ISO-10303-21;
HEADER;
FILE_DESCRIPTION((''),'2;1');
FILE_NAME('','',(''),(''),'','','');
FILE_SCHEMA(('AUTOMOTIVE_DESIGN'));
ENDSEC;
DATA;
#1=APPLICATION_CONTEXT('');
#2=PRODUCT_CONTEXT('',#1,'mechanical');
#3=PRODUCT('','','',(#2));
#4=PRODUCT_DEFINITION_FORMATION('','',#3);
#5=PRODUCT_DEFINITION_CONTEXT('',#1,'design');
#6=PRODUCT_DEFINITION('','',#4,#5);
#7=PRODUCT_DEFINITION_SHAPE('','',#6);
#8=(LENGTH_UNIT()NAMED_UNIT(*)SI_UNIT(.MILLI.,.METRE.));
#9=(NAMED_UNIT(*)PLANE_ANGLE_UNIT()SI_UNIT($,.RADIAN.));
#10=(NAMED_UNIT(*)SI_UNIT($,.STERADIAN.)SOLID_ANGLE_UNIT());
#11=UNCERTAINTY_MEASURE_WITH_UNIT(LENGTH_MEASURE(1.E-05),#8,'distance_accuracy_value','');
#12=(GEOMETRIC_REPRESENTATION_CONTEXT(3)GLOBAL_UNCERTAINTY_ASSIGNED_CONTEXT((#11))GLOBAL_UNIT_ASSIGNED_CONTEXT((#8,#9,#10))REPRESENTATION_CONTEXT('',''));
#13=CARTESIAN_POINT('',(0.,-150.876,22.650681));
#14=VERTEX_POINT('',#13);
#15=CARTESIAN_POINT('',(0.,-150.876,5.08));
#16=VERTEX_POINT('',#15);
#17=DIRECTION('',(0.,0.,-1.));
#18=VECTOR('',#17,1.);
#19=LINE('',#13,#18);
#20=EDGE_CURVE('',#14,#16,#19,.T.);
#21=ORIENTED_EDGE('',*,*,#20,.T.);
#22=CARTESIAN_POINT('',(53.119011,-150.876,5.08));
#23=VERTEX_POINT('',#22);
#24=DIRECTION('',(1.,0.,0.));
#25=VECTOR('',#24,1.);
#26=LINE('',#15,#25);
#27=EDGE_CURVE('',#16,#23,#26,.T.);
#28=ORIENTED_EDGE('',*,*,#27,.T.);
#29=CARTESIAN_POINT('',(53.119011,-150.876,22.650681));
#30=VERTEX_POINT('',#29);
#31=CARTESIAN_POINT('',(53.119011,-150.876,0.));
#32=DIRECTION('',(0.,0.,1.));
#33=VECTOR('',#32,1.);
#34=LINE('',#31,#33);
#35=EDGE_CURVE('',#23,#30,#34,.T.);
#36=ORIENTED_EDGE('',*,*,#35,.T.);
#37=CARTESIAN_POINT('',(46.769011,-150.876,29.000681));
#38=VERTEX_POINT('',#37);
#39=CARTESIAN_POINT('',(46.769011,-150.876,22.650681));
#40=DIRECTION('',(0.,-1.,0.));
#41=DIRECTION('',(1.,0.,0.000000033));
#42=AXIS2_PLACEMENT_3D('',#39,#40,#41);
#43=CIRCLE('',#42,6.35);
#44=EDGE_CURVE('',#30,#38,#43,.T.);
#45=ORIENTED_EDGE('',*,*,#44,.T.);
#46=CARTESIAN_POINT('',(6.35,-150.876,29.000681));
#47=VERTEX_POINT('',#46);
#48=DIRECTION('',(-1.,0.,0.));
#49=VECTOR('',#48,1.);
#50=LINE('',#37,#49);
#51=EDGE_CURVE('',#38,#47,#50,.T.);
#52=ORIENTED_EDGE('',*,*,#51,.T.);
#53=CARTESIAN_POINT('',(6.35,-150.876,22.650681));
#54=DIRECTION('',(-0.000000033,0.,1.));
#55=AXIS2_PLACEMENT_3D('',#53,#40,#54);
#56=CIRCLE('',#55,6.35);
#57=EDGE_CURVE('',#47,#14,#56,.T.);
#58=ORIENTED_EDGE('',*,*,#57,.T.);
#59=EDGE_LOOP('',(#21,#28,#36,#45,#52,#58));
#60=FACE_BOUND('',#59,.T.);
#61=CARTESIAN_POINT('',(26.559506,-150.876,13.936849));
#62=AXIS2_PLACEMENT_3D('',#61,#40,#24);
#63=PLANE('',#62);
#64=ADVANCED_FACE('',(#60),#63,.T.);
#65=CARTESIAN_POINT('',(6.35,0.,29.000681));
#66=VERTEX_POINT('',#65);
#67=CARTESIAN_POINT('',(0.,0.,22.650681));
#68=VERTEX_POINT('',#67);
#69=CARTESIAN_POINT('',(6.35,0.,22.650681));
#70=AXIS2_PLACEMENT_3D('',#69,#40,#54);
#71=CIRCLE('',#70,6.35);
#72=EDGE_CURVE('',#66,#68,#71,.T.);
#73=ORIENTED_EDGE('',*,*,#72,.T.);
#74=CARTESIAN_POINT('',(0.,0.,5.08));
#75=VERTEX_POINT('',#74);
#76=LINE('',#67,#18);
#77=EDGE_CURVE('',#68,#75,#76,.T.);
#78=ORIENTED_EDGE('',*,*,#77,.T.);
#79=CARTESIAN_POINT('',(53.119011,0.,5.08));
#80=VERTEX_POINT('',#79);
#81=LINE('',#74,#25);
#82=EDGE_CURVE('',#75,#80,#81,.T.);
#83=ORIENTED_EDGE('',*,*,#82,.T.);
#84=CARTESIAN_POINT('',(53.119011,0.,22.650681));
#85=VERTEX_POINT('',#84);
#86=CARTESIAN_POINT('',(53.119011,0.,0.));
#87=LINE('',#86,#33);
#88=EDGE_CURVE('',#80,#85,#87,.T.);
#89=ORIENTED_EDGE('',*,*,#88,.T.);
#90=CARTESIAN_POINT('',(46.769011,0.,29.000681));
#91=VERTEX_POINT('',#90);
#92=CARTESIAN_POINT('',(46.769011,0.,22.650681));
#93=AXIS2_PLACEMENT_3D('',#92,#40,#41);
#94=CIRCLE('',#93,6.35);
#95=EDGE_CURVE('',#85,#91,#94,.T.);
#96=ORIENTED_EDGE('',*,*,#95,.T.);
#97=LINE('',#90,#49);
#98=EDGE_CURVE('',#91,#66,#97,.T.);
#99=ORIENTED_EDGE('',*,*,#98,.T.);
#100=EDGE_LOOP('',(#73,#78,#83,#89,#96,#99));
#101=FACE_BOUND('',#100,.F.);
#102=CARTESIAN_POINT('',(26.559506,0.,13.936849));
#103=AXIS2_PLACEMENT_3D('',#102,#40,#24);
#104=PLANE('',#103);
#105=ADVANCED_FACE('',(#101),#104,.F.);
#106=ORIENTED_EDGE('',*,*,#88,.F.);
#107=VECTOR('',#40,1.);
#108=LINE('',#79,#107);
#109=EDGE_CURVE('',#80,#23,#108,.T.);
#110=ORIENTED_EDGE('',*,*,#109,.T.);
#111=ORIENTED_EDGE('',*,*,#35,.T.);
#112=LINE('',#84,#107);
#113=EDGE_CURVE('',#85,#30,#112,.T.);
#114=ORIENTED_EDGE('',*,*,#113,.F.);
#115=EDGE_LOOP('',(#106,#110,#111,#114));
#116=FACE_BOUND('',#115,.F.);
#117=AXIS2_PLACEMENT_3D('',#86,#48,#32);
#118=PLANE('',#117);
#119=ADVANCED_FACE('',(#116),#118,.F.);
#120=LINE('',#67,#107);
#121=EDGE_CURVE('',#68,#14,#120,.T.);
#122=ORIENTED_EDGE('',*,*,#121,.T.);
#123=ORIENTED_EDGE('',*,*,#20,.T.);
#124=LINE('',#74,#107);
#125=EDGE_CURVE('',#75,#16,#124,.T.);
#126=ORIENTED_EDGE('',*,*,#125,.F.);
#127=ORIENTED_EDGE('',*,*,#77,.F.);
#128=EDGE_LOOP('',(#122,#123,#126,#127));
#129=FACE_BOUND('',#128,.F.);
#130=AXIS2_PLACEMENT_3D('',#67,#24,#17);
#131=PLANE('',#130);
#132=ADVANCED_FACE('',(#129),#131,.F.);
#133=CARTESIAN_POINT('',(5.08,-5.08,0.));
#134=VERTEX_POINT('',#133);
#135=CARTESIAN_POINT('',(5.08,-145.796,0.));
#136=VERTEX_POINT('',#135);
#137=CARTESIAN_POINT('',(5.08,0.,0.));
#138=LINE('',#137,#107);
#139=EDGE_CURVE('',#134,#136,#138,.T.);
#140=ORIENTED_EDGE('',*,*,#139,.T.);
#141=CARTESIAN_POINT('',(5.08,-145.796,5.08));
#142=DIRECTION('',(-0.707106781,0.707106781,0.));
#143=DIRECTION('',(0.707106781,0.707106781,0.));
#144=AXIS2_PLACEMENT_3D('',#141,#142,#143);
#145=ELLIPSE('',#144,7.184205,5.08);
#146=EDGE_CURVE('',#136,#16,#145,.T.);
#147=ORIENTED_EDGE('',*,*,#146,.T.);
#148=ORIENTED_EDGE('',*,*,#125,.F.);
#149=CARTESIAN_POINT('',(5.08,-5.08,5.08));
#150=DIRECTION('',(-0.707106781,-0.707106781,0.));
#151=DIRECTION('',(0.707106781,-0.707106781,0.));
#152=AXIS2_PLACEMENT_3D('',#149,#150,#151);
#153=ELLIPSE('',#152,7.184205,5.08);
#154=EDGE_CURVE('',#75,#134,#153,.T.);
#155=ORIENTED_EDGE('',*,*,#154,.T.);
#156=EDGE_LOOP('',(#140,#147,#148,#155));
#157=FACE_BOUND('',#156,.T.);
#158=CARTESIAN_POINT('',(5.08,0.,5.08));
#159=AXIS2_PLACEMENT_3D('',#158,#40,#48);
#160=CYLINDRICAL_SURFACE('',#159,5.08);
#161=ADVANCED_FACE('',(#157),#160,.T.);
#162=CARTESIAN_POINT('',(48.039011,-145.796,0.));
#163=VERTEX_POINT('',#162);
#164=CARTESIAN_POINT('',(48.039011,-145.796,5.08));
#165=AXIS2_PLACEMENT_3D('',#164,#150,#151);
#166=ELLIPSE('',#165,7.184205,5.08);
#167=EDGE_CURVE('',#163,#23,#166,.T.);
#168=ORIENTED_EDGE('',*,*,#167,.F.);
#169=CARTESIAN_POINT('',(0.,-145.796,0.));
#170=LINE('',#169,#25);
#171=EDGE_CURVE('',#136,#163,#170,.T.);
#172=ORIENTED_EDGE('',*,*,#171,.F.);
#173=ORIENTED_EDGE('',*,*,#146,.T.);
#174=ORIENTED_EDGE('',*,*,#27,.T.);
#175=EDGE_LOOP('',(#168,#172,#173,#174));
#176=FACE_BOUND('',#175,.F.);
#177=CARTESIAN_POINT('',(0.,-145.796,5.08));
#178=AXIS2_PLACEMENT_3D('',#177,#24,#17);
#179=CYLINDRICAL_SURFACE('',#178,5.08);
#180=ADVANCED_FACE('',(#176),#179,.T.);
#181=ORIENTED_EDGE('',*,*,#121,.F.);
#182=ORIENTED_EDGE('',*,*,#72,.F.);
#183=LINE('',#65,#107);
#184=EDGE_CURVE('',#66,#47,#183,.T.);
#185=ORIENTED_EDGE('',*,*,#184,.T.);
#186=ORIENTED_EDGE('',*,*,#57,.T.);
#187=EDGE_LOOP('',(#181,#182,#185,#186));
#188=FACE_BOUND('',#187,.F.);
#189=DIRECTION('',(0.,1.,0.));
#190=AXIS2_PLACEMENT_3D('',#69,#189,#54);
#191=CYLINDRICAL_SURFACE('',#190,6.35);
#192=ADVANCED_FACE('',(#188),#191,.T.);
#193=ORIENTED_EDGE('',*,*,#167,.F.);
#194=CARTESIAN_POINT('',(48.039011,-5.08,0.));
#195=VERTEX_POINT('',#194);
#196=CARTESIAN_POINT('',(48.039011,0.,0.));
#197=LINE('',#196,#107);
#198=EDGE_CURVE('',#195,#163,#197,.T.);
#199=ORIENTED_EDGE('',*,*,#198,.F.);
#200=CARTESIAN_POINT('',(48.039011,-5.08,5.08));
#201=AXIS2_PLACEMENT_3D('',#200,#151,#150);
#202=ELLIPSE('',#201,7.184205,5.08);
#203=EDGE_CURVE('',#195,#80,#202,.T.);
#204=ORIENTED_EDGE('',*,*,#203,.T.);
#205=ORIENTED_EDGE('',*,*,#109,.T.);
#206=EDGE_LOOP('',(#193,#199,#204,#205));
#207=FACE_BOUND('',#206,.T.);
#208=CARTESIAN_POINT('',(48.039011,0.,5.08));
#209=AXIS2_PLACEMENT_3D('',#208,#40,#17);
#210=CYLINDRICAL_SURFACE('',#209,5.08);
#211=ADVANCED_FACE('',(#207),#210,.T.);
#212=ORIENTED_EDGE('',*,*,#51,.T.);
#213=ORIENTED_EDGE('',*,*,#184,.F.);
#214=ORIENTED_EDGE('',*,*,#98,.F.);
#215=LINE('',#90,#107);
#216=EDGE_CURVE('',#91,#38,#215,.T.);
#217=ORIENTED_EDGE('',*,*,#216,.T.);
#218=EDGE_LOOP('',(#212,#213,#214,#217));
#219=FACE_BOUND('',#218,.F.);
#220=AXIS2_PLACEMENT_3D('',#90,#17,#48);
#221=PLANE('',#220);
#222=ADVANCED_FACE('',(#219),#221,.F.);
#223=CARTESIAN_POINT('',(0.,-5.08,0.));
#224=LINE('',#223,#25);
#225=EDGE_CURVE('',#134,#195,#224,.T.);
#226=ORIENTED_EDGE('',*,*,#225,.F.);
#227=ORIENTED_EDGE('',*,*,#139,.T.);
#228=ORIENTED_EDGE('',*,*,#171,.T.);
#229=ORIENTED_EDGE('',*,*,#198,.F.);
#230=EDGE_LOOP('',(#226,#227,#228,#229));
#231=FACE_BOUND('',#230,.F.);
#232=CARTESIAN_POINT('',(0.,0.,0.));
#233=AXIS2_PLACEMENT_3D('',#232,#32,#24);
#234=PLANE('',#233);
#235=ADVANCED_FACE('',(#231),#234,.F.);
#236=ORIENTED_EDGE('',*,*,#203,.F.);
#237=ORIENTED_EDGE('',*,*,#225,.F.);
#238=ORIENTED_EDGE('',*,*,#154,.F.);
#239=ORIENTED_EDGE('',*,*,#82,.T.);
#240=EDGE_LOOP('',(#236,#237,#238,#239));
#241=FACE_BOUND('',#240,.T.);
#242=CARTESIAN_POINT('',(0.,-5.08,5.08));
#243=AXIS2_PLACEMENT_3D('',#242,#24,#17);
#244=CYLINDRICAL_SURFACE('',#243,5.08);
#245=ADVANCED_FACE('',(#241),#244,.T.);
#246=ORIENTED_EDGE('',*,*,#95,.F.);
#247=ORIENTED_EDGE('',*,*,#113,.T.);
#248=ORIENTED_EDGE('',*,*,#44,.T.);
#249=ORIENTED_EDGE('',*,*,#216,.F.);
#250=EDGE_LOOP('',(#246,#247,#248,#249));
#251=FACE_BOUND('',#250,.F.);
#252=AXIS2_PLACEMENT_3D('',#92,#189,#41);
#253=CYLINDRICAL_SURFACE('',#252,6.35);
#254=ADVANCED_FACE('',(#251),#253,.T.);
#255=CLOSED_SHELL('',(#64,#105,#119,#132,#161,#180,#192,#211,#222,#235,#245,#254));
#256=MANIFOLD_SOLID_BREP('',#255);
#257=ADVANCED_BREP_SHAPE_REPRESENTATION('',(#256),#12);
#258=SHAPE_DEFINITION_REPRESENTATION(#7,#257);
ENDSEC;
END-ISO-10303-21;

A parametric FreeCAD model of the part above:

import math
import FreeCAD as App
import Part
import Sketcher

V = App.Vector
Q = App.Units.Quantity


def edges_at(feature, points):
    """Names of the edges that pass closest to the given points."""
    edges = feature.Shape.Edges
    near = lambda p: min(range(len(edges)), key=lambda i: edges[i].distToShape(Part.Vertex(*p))[0])
    return sorted({f"Edge{near(p) + 1}" for p in points})

doc = App.newDocument("Part")
body = doc.addObject("PartDesign::Body", "Body")

# Sketch on XZ plane
sketch1 = body.newObject("Sketcher::SketchObject", "Sketch")
sketch1.AttachmentSupport = (doc.getObject("XZ_Plane"), [""])
sketch1.MapMode = "FlatFace"
sketch1.addGeometry([
    Part.LineSegment(V(0, 23, 0), V(0, 0, 0)),  # 0
    Part.LineSegment(V(0, 0, 0), V(53, 0, 0)),  # 1
    Part.LineSegment(V(53, 0, 0), V(53, 23, 0)),  # 2
    Part.ArcOfCircle(Part.Circle(V(47, 23, 0), V(0, 0, 1), 6), math.radians(0), math.radians(90)),  # 3
    Part.LineSegment(V(47, 29, 0), V(6, 29, 0)),  # 4
    Part.ArcOfCircle(Part.Circle(V(6, 23, 0), V(0, 0, 1), 6), math.radians(90), math.radians(180)),  # 5
], False)
sketch1.addConstraint([
    Sketcher.Constraint("Coincident", 0, 2, 1, 1),
    Sketcher.Constraint("Coincident", 1, 2, 2, 1),
    Sketcher.Constraint("Tangent", 2, 2, 3, 1),
    Sketcher.Constraint("Tangent", 3, 2, 4, 1),
    Sketcher.Constraint("Tangent", 4, 2, 5, 1),
    Sketcher.Constraint("Tangent", 5, 2, 0, 1),
    Sketcher.Constraint("Vertical", 0),
    Sketcher.Constraint("Horizontal", 1),
    Sketcher.Constraint("Vertical", 2),
    Sketcher.Constraint("Horizontal", 4),
    Sketcher.Constraint("Coincident", 0, 2, -1, 1),
    Sketcher.Constraint("Equal", 3, 5),
    Sketcher.Constraint("Radius", 3, Q("0.25 in")),
    Sketcher.Constraint("DistanceX", 1, 1, 1, 2, Q("53.119011 mm")),
    Sketcher.Constraint("DistanceY", 0, 2, 0, 1, Q("22.650681 mm")),
])
pad1 = body.newObject("PartDesign::Pad", "Pad")
pad1.Profile = sketch1
pad1.Length = Q("5.94 in")
doc.recompute()

fillet = body.newObject("PartDesign::Fillet", "Fillet")
fillet.Base = (pad1, edges_at(pad1, [
    (53.119, -75.438, 0),
    (26.56, -150.876, 0),
    (0, -75.438, 0),
    (26.56, 0, 0),
]))
fillet.Radius = Q("0.2 in")

doc.recompute()
